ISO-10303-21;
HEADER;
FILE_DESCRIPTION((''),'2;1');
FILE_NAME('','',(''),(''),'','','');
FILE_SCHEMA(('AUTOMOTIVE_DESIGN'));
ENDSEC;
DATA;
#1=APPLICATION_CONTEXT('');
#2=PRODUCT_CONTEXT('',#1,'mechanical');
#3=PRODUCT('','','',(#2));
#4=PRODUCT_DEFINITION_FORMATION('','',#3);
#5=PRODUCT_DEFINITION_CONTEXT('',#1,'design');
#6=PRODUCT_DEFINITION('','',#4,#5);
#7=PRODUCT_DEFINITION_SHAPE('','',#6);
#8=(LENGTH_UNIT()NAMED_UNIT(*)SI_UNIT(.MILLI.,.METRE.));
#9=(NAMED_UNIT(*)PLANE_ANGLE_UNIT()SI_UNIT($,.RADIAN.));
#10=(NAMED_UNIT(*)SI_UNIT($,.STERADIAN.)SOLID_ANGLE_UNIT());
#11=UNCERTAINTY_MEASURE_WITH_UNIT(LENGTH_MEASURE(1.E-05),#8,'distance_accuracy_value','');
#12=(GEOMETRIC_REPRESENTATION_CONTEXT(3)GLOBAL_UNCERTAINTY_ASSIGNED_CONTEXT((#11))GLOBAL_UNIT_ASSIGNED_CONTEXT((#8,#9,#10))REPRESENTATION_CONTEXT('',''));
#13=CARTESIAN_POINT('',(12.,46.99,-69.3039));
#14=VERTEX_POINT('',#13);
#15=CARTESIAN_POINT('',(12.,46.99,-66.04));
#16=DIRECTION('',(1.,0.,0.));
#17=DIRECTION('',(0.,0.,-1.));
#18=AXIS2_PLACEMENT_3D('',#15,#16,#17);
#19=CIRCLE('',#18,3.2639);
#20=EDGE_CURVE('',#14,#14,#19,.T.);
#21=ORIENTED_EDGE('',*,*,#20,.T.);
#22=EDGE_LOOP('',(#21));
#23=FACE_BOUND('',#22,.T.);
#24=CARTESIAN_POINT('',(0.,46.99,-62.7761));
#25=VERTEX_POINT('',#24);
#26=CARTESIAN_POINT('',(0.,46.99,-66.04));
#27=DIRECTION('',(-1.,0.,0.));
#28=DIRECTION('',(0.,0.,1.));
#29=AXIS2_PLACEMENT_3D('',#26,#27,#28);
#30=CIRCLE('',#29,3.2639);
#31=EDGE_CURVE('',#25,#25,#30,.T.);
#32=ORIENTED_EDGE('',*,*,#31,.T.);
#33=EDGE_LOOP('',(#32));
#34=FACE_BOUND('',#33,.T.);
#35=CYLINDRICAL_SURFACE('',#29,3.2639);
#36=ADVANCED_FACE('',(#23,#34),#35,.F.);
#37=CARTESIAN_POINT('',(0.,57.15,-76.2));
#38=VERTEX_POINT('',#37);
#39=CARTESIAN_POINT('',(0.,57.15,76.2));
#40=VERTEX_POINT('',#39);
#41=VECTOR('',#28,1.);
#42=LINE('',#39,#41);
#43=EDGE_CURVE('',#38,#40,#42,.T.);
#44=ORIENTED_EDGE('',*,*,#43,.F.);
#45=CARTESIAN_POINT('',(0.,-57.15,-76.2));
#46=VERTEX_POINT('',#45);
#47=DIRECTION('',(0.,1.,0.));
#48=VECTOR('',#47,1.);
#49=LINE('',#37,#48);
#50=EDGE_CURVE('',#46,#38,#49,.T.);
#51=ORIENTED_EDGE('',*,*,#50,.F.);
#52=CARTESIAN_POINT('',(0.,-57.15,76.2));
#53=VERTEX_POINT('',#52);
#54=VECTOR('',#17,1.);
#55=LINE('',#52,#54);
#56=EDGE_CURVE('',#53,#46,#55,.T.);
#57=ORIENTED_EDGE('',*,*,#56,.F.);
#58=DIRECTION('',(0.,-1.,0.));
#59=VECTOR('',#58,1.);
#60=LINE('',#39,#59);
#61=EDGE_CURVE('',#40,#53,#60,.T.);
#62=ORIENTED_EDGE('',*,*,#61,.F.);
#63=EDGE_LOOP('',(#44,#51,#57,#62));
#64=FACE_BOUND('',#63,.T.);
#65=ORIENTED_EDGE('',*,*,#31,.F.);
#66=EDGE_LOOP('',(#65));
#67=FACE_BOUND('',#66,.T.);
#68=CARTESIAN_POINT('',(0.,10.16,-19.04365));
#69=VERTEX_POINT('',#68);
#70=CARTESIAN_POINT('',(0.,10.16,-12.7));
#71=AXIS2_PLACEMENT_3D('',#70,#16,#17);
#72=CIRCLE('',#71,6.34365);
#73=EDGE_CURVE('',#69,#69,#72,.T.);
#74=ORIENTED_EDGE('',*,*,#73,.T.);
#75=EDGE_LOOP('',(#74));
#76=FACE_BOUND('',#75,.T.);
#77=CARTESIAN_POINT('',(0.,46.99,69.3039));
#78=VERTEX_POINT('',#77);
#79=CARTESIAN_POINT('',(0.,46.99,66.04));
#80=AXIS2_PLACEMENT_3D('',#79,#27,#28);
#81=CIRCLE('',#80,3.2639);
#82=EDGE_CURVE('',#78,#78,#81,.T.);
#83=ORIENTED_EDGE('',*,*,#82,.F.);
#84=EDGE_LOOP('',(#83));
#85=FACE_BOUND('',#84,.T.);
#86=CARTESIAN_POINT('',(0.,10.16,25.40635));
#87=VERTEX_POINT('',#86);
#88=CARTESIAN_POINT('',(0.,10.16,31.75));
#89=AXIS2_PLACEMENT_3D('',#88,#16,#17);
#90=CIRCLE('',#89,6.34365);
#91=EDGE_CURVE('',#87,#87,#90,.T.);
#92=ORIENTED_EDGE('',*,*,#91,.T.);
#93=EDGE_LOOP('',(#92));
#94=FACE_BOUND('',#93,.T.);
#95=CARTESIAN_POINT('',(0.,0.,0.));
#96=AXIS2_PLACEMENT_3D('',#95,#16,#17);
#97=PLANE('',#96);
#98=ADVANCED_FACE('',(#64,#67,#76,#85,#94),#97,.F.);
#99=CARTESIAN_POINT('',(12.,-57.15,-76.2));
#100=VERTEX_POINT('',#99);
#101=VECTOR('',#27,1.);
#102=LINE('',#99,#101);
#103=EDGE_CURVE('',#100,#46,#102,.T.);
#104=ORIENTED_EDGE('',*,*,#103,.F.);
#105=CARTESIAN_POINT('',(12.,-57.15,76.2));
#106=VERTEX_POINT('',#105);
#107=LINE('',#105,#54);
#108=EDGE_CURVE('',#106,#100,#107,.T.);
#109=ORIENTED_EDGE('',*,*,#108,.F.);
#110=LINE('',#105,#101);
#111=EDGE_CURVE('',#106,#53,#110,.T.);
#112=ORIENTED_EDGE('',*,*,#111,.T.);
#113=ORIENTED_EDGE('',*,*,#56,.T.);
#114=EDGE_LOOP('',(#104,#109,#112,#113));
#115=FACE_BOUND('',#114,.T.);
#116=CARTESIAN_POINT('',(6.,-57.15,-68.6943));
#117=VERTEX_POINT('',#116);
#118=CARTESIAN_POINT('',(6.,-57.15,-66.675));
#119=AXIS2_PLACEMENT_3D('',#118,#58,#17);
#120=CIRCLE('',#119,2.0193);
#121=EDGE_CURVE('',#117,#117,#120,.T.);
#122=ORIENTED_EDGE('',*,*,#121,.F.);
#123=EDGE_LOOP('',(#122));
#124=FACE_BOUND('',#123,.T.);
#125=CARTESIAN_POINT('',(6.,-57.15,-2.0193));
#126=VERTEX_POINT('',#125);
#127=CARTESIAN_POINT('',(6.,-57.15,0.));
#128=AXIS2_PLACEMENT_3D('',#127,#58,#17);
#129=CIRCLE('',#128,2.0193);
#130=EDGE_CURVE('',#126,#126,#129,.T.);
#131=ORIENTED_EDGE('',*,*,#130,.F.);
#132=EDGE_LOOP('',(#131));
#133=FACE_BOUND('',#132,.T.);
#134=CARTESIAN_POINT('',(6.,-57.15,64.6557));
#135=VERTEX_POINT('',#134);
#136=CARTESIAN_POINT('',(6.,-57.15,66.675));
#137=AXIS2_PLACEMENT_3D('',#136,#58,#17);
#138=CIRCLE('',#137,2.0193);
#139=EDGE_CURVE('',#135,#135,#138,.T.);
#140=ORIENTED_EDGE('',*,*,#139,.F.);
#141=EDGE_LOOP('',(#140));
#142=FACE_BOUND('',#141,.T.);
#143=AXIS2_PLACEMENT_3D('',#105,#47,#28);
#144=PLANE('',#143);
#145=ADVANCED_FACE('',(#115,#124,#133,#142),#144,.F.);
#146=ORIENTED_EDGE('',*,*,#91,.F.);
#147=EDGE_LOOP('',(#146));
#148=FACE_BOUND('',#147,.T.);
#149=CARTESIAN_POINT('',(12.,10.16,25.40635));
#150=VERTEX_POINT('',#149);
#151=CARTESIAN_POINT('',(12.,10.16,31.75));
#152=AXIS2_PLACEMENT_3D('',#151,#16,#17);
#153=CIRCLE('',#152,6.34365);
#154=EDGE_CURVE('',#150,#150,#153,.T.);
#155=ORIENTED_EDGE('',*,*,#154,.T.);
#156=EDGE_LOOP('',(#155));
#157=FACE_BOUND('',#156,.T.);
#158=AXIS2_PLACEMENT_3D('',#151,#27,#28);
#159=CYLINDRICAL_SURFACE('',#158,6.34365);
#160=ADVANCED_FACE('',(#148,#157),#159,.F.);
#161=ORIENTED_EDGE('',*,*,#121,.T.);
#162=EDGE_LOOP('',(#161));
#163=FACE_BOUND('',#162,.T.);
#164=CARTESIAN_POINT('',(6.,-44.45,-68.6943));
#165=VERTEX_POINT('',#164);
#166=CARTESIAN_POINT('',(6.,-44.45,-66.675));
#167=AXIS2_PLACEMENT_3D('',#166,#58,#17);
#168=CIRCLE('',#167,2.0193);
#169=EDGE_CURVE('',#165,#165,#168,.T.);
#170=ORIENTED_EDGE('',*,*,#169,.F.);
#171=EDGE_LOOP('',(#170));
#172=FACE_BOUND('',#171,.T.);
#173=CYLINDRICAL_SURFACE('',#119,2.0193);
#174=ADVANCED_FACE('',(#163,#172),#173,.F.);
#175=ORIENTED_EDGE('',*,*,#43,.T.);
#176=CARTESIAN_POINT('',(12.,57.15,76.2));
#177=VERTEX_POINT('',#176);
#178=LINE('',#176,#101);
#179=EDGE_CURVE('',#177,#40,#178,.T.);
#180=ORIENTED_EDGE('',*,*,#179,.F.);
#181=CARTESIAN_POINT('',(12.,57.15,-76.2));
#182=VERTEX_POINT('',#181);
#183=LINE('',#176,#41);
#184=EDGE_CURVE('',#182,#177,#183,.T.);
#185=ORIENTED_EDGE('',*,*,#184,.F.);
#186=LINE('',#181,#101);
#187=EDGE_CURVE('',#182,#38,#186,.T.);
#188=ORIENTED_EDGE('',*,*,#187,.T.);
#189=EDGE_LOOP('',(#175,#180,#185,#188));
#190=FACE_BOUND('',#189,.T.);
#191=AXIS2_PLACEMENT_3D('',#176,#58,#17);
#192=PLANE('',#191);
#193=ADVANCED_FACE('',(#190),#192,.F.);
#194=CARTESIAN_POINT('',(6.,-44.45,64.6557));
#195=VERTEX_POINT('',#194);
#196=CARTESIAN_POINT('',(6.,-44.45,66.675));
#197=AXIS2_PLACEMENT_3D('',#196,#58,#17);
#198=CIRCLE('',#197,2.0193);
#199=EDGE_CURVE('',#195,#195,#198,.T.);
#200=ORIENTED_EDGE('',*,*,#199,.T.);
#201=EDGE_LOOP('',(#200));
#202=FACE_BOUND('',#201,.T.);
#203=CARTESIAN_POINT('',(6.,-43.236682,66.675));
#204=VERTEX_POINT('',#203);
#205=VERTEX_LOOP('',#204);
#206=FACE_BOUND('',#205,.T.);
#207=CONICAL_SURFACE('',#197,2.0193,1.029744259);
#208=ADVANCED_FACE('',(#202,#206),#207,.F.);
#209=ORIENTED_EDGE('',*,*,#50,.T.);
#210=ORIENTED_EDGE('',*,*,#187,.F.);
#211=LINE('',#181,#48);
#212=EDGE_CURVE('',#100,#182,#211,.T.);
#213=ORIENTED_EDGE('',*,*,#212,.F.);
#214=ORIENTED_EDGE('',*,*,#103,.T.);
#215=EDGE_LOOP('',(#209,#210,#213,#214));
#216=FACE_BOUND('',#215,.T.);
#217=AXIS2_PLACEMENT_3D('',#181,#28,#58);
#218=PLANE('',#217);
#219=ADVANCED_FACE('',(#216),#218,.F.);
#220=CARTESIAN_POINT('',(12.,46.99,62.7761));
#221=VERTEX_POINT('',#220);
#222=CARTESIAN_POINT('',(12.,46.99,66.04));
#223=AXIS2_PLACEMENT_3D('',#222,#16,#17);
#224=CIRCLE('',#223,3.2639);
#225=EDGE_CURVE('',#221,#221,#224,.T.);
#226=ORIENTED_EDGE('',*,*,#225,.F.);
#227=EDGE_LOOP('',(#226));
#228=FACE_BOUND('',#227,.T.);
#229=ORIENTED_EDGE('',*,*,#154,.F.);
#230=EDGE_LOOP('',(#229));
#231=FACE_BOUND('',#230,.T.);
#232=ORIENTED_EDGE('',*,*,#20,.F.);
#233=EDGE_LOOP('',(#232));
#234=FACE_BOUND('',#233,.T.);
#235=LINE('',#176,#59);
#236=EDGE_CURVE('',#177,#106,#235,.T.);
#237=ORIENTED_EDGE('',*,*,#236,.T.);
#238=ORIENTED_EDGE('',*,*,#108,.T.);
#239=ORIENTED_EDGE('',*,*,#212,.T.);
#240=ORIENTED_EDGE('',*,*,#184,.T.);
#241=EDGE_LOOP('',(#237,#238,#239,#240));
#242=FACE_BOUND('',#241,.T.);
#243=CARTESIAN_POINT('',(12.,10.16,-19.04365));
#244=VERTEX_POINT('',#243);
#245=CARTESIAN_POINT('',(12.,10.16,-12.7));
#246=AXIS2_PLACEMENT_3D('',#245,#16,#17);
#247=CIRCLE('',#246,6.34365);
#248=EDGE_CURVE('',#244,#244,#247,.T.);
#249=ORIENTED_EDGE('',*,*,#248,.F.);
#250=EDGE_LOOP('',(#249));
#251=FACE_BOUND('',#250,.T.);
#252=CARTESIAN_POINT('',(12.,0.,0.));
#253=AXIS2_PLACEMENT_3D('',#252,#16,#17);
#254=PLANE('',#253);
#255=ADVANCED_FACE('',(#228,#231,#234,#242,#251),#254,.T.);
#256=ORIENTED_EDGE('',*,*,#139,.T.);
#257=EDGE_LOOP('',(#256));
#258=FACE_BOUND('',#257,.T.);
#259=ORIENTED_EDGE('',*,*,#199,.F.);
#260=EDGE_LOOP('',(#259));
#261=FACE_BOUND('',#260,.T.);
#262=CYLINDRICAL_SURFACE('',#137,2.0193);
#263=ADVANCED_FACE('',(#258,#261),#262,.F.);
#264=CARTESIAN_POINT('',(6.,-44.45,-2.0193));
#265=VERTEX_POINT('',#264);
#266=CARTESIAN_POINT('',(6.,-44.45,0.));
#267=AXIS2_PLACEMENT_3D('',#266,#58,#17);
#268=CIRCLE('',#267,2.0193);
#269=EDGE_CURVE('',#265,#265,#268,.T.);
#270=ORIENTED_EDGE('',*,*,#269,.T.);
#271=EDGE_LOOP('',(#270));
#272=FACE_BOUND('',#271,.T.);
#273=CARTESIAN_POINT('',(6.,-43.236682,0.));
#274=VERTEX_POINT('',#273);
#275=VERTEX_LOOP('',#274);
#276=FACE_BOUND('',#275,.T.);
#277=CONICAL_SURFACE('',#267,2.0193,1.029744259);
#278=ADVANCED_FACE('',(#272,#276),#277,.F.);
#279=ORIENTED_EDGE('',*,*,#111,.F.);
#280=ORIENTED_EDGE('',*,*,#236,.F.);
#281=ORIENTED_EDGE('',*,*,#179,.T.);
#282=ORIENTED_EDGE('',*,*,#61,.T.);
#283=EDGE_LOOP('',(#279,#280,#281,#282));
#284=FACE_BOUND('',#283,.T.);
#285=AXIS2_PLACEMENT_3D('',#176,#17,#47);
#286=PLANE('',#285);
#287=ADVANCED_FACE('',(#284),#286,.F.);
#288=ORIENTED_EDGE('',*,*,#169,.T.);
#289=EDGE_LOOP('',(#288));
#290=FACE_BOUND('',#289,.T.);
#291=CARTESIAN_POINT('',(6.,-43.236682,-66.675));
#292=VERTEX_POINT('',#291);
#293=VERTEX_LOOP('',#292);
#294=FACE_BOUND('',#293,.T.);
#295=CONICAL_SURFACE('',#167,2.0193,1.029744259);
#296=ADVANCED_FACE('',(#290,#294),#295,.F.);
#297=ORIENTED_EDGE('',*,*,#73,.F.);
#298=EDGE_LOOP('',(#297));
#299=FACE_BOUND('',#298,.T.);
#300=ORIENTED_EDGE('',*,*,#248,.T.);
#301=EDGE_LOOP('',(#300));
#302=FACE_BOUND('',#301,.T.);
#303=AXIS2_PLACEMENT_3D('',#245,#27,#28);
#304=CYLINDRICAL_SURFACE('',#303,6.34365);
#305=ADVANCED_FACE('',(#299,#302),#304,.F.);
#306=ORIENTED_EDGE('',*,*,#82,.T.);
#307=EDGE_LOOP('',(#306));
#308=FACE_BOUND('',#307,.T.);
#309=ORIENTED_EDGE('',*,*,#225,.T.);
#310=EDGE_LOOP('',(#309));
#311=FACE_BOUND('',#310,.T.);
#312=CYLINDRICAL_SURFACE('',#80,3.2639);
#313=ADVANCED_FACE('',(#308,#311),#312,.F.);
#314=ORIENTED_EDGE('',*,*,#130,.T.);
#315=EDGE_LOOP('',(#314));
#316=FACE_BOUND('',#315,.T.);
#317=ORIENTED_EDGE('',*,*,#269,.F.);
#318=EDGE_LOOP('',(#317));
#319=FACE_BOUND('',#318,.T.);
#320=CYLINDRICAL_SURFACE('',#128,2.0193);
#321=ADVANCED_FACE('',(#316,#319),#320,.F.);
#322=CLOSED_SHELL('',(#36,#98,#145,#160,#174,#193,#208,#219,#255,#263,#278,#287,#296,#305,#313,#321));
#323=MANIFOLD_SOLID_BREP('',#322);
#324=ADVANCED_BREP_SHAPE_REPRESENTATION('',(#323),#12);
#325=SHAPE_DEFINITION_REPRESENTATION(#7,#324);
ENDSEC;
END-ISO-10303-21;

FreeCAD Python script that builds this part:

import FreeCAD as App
import Part
import Sketcher
Q = App.Units.Quantity

doc = App.newDocument("Part")
body = doc.addObject("PartDesign::Body", "Body")

# Sketch on YZ plane
sketch1 = doc.addObject("Sketcher::SketchObject", "Sketch")
body.addObject(sketch1)
sketch1.AttachmentSupport = (doc.YZ_Plane, [""])
sketch1.MapMode = "FlatFace"
sketch1.addGeometry(Part.LineSegment(App.Vector(57, 76, 0), App.Vector(-57, 76, 0)), False)
sketch1.addGeometry(Part.LineSegment(App.Vector(-57, 76, 0), App.Vector(-57, -76, 0)), False)
sketch1.addGeometry(Part.LineSegment(App.Vector(-57, -76, 0), App.Vector(57, -76, 0)), False)
sketch1.addGeometry(Part.LineSegment(App.Vector(57, -76, 0), App.Vector(57, 76, 0)), False)
sketch1.addGeometry(Part.Circle(App.Vector(10, 32, 0), App.Vector(0, 0, 1), 6), False)
sketch1.addGeometry(Part.Circle(App.Vector(10, -13, 0), App.Vector(0, 0, 1), 6), False)
sketch1.addConstraint(Sketcher.Constraint("Coincident", 0, 2, 1, 1))
sketch1.addConstraint(Sketcher.Constraint("Coincident", 1, 2, 2, 1))
sketch1.addConstraint(Sketcher.Constraint("Coincident", 2, 2, 3, 1))
sketch1.addConstraint(Sketcher.Constraint("Coincident", 3, 2, 0, 1))
sketch1.addConstraint(Sketcher.Constraint("Horizontal", 0))
sketch1.addConstraint(Sketcher.Constraint("Vertical", 1))
sketch1.addConstraint(Sketcher.Constraint("Horizontal", 2))
sketch1.addConstraint(Sketcher.Constraint("Vertical", 3))
sketch1.addConstraint(Sketcher.Constraint("Equal", 4, 5))
sketch1.addConstraint(Sketcher.Constraint("Symmetric", 0, 2, 2, 2, -1, 1))
sketch1.addConstraint(Sketcher.Constraint("Vertical", 4, 3, 5, 3))
sketch1.addConstraint(Sketcher.Constraint("DistanceY", 1, 2, 1, 1, Q("6 in")))
sketch1.addConstraint(Sketcher.Constraint("DistanceX", 0, 2, 0, 1, Q("4.5 in")))
sketch1.addConstraint(Sketcher.Constraint("Diameter", 4, Q("0.4995 in")))
sketch1.addConstraint(Sketcher.Constraint("DistanceX", -1, 1, 4, 3, Q("0.4 in")))
sketch1.addConstraint(Sketcher.Constraint("DistanceY", 5, 3, -1, 1, Q("0.5 in")))
sketch1.addConstraint(Sketcher.Constraint("DistanceY", -1, 1, 4, 3, Q("1.25 in")))
pad1 = doc.addObject("PartDesign::Pad", "Pad")
body.addObject(pad1)
pad1.Profile = sketch1
pad1.Length = 12

# Sketch on XZ plane
sketch2 = doc.addObject("Sketcher::SketchObject", "Sketch001")
body.addObject(sketch2)
sketch2.AttachmentSupport = (doc.XZ_Plane, [""])
sketch2.MapMode = "FlatFace"
sketch2.AttachmentOffset = App.Placement(App.Vector(0, 0, 2.25 * 25.4), App.Rotation())
sketch2.addGeometry(Part.Circle(App.Vector(6, 66.7, 0), App.Vector(0, 0, 1), 2), False)
sketch2.addGeometry(Part.Circle(App.Vector(6, 0, 0), App.Vector(0, 0, 1), 2), False)
sketch2.addGeometry(Part.Circle(App.Vector(6, -66.7, 0), App.Vector(0, 0, 1), 2), False)
sketch2.addConstraint(Sketcher.Constraint("Equal", 0, 1))
sketch2.addConstraint(Sketcher.Constraint("Equal", 1, 2))
sketch2.addConstraint(Sketcher.Constraint("Symmetric", 0, 3, 2, 3, -1))
sketch2.addConstraint(Sketcher.Constraint("PointOnObject", 1, 3, -1))
sketch2.addConstraint(Sketcher.Constraint("Vertical", 0, 3, 1, 3))
sketch2.addConstraint(Sketcher.Constraint("Diameter", 0, Q("0.159 in")))
sketch2.addConstraint(Sketcher.Constraint("DistanceY", 2, 3, 0, 3, Q("5.25 in")))
sketch2.addConstraint(Sketcher.Constraint("DistanceX", -1, 1, 0, 3, Q("6 mm")))
doc.recompute()
hole = doc.addObject("PartDesign::Hole", "Hole")
body.addObject(hole)
hole.Profile = sketch2
hole.ThreadType = "None"
hole.Diameter = Q("0.159 in")
hole.DepthType = "Dimension"
hole.Depth = Q("0.5 in")
hole.DrillPoint = "Angled"
hole.DrillPointAngle = 118

# Sketch on YZ plane
sketch3 = doc.addObject("Sketcher::SketchObject", "Sketch002")
body.addObject(sketch3)
sketch3.AttachmentSupport = (doc.YZ_Plane, [""])
sketch3.MapMode = "FlatFace"
sketch3.addGeometry(Part.Circle(App.Vector(47, -66, 0), App.Vector(0, 0, 1), 3.3), False)
sketch3.addGeometry(Part.Circle(App.Vector(47, 66, 0), App.Vector(0, 0, 1), 3.3), False)
sketch3.addConstraint(Sketcher.Constraint("Equal", 0, 1))
sketch3.addConstraint(Sketcher.Constraint("Symmetric", 0, 3, 1, 3, -1))
sketch3.addConstraint(Sketcher.Constraint("Diameter", 0, Q("0.257 in")))
sketch3.addConstraint(Sketcher.Constraint("DistanceY", 0, 3, -1, 1, Q("2.6 in")))
sketch3.addConstraint(Sketcher.Constraint("DistanceX", -1, 1, 0, 3, Q("1.85 in")))
doc.recompute()
hole2 = doc.addObject("PartDesign::Hole", "Hole001")
body.addObject(hole2)
hole2.Profile = sketch3
hole2.ThreadType = "None"
hole2.Diameter = Q("0.257 in")
hole2.DepthType = "Dimension"
hole2.Depth = Q("0.5 in")
hole2.DrillPoint = "Angled"
hole2.DrillPointAngle = 118
hole2.Reversed = True

doc.recompute()
